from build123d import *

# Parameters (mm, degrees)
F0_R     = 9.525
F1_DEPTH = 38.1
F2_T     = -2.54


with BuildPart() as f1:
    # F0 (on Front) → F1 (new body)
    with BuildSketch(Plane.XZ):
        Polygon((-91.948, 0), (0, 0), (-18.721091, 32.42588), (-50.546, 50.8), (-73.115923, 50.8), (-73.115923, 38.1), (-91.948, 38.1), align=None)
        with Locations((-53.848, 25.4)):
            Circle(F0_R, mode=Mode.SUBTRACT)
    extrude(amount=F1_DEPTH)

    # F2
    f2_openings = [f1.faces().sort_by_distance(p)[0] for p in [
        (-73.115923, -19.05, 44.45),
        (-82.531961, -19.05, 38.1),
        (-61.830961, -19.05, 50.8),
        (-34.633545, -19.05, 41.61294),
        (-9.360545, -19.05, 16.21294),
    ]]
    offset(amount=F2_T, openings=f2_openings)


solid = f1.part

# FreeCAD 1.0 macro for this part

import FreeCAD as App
import Part
import Sketcher

V = App.Vector
Q = App.Units.Quantity


def faces_at(feature, points):
    """Names of the faces that lie closest to the given points."""
    faces = feature.Shape.Faces
    near = lambda p: min(range(len(faces)), key=lambda i: faces[i].distToShape(Part.Vertex(*p))[0])
    return sorted({f"Face{near(p) + 1}" for p in points})

doc = App.newDocument("Part")
params = doc.addObject("Spreadsheet::Sheet", "Params")
for row, (alias, value) in enumerate([
    ("sketch1_diameter", "0.75 in"),
    ("sketch1_height", "0.5 in"),
    ("sketch1_height2", "1.5 in"),
    ("sketch1_width", "3.62 in"),
    ("pad1_length", "1.5 in"),
    ("thickness_wall", "0.1 in"),
], start=1):
    params.set(f"A{row}", alias)
    params.set(f"B{row}", "=" + value)
    params.setAlias(f"B{row}", alias)

body = doc.addObject("PartDesign::Body", "Body")

# Sketch on XZ plane
sketch1 = doc.addObject("Sketcher::SketchObject", "Sketch")
body.addObject(sketch1)
sketch1.AttachmentSupport = (doc.XZ_Plane, [""])
sketch1.MapMode = "FlatFace"
sketch1.addGeometry([
    Part.LineSegment(V(-91.948, 0, 0), V(0, 0, 0)),  # 0
    Part.LineSegment(V(0, 0, 0), V(-18.721091, 32.42588, 0)),  # 1
    Part.LineSegment(V(-18.721091, 32.42588, 0), V(-50.546, 50.8, 0)),  # 2
    Part.LineSegment(V(-50.546, 50.8, 0), V(-73.115923, 50.8, 0)),  # 3
    Part.LineSegment(V(-73.115923, 50.8, 0), V(-73.115923, 38.1, 0)),  # 4
    Part.LineSegment(V(-73.115923, 38.1, 0), V(-91.948, 38.1, 0)),  # 5
    Part.LineSegment(V(-91.948, 38.1, 0), V(-91.948, 0, 0)),  # 6
    Part.Circle(V(-53.848, 25.4, 0), V(0, 0, 1), 9.525),  # 7
], False)
sketch1.addConstraint([
    Sketcher.Constraint("Coincident", 0, 2, 1, 1),
    Sketcher.Constraint("Coincident", 1, 2, 2, 1),
    Sketcher.Constraint("Coincident", 2, 2, 3, 1),
    Sketcher.Constraint("Coincident", 3, 2, 4, 1),
    Sketcher.Constraint("Coincident", 4, 2, 5, 1),
    Sketcher.Constraint("Coincident", 5, 2, 6, 1),
    Sketcher.Constraint("Coincident", 6, 2, 0, 1),
    Sketcher.Constraint("Horizontal", 0),
    Sketcher.Constraint("Horizontal", 3),
    Sketcher.Constraint("Vertical", 4),
    Sketcher.Constraint("Horizontal", 5),
    Sketcher.Constraint("Vertical", 6),
    Sketcher.Constraint("Coincident", 0, 2, -1, 1),
    Sketcher.Constraint("Diameter", 7, Q("0.75 in")),
    Sketcher.Constraint("DistanceY", 4, 2, 4, 1, Q("0.5 in")),
    Sketcher.Constraint("DistanceY", 6, 2, 6, 1, Q("1.5 in")),
    Sketcher.Constraint("DistanceY", -1, 1, 7, 3, Q("1 in")),
    Sketcher.Constraint("Angle", 1, Q("120.000001 deg")),
    Sketcher.Constraint("Angle", 2, Q("150 deg")),
    Sketcher.Constraint("DistanceX", 0, 1, 0, 2, Q("3.62 in")),
    Sketcher.Constraint("DistanceX", 5, 2, 7, 3, Q("1.5 in")),
    Sketcher.Constraint("DistanceX", 2, 2, -1, 1, Q("1.99 in")),
    Sketcher.Constraint("DistanceX", 3, 2, 3, 1, Q("22.569923 mm")),
])
sketch1.setExpression("Constraints[13]", "Params.sketch1_diameter")
sketch1.setExpression("Constraints[14]", "Params.sketch1_height")
sketch1.setExpression("Constraints[15]", "Params.sketch1_height2")
sketch1.setExpression("Constraints[19]", "Params.sketch1_width")
pad1 = doc.addObject("PartDesign::Pad", "Pad")
body.addObject(pad1)
pad1.Profile = sketch1
pad1.setExpression("Length", "Params.pad1_length")
doc.recompute()

thickness = doc.addObject("PartDesign::Thickness", "Thickness")
body.addObject(thickness)
thickness.Base = (pad1, faces_at(pad1, [
    (-73.116, -19.05, 44.45),
    (-82.532, -19.05, 38.1),
    (-61.831, -19.05, 50.8),
    (-34.634, -19.05, 41.613),
    (-9.361, -19.05, 16.213),
]))
thickness.setExpression("Value", "Params.thickness_wall")
thickness.Reversed = True
thickness.Join = "Arc"

doc.recompute()
